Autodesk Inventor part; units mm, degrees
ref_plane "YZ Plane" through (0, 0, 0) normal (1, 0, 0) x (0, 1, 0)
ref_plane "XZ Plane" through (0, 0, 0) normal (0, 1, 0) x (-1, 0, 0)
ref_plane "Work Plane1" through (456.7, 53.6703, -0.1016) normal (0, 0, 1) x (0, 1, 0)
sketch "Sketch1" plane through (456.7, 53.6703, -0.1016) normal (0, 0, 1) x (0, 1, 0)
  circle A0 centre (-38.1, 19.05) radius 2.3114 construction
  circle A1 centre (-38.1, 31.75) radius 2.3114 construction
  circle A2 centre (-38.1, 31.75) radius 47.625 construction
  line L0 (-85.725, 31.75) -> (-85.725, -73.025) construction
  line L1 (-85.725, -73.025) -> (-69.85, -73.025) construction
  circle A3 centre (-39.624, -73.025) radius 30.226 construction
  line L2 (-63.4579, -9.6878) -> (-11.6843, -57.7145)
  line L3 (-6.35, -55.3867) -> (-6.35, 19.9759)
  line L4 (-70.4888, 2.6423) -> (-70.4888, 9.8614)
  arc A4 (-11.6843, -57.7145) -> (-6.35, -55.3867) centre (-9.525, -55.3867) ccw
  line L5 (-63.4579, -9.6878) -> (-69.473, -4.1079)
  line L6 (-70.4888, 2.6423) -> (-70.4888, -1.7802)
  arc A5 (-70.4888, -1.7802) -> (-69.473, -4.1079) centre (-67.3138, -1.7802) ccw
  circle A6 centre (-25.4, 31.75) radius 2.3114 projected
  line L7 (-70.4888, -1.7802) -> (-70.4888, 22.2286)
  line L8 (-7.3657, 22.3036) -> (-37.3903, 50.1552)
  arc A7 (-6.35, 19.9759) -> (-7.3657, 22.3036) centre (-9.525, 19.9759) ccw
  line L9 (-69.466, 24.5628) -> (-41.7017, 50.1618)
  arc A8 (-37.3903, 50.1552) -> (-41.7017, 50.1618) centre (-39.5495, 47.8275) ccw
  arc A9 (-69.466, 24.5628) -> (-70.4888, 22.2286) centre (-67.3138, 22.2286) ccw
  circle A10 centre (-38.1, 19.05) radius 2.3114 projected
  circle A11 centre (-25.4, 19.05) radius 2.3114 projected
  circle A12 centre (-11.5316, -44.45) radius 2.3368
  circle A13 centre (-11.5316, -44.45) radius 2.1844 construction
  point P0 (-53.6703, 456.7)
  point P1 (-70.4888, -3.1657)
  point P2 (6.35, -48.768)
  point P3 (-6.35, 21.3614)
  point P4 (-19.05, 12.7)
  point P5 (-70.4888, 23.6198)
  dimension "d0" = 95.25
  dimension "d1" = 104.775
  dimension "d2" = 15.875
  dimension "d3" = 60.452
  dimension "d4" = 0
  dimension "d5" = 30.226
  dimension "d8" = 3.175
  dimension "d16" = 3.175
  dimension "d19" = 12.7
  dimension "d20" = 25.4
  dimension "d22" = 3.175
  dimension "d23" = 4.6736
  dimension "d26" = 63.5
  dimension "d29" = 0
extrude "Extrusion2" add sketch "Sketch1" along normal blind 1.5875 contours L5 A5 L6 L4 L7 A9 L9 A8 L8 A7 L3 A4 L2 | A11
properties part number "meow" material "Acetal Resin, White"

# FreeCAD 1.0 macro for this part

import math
import FreeCAD as App
import Part
import Sketcher

V = App.Vector
Q = App.Units.Quantity

doc = App.newDocument("Part")
body = doc.addObject("PartDesign::Body", "Body")

sketch1 = body.newObject("Sketcher::SketchObject", "Sketch")
sketch1.AttachmentSupport = (doc.getObject("XY_Plane"), [""])
sketch1.MapMode = "FlatFace"
sketch1.AttachmentOffset = App.Placement(V(0, 0, -0.004 * 25.4), App.Rotation())
sketch1.addGeometry(Part.LineSegment(V(460.8079, -15.8027, 0), V(466.3878, -9.7876, 0)), False)
sketch1.addGeometry(Part.LineSegment(V(466.3878, -9.7876, 0), V(514.4145, 41.986, 0)), False)
sketch1.addGeometry(Part.ArcOfCircle(Part.Circle(V(512.0867, 44.1453, 0), V(0, 0, 1), 3.175095), math.radians(-42.849434), math.radians(90)), False)
sketch1.addGeometry(Part.LineSegment(V(512.0867, 47.3203, 0), V(436.7241, 47.3203, 0)), False)
sketch1.addGeometry(Part.ArcOfCircle(Part.Circle(V(436.7241, 44.1453, 0), V(0, 0, 1), 3.175), math.radians(90), math.radians(137.149339)), False)
sketch1.addGeometry(Part.LineSegment(V(434.3964, 46.3046, 0), V(406.5448, 16.28, 0)), False)
sketch1.addGeometry(Part.ArcOfCircle(Part.Circle(V(408.8725, 14.1208, 0), V(0, 0, 1), 3.174954), math.radians(137.150662), math.radians(222.67573)), False)
sketch1.addGeometry(Part.LineSegment(V(406.5382, 11.9686, 0), V(432.1372, -15.7957, 0)), False)
sketch1.addGeometry(Part.ArcOfCircle(Part.Circle(V(434.4714, -13.6435, 0), V(0, 0, 1), 3.174973), math.radians(-137.323047), math.radians(-90)), False)
sketch1.addGeometry(Part.LineSegment(V(434.4714, -16.8185, 0), V(458.4802, -16.8185, 0)), False)
sketch1.addGeometry(Part.ArcOfCircle(Part.Circle(V(458.4802, -13.6435, 0), V(0, 0, 1), 3.175), math.radians(-90), math.radians(-42.849338)), False)
sketch1.addGeometry(Part.Circle(V(501.15, 42.1387, 0), V(0, 0, 1), 2.3368), False)
sketch1.addGeometry(Part.Circle(V(437.65, 15.5703, 0), V(0, 0, 1), 2.3114), False)
sketch1.addGeometry(Part.Circle(V(424.95, 28.2703, 0), V(0, 0, 1), 2.3114), False)
sketch1.addConstraint(Sketcher.Constraint("Coincident", 0, 2, 1, 1))
sketch1.addConstraint(Sketcher.Constraint("Coincident", 1, 2, 2, 1))
sketch1.addConstraint(Sketcher.Constraint("Coincident", 2, 2, 3, 1))
sketch1.addConstraint(Sketcher.Constraint("Coincident", 3, 2, 4, 1))
sketch1.addConstraint(Sketcher.Constraint("Coincident", 4, 2, 5, 1))
sketch1.addConstraint(Sketcher.Constraint("Coincident", 5, 2, 6, 1))
sketch1.addConstraint(Sketcher.Constraint("Coincident", 6, 2, 7, 1))
sketch1.addConstraint(Sketcher.Constraint("Coincident", 7, 2, 8, 1))
sketch1.addConstraint(Sketcher.Constraint("Coincident", 8, 2, 9, 1))
sketch1.addConstraint(Sketcher.Constraint("Coincident", 9, 2, 10, 1))
sketch1.addConstraint(Sketcher.Constraint("Coincident", 10, 2, 0, 1))
sketch1.addConstraint(Sketcher.Constraint("Horizontal", 3))
sketch1.addConstraint(Sketcher.Constraint("Horizontal", 9))
sketch1.addConstraint(Sketcher.Constraint("Diameter", 11, Q("0.184 in")))
sketch1.addConstraint(Sketcher.Constraint("Radius", 2, Q("0.125 in")))
sketch1.addConstraint(Sketcher.Constraint("Radius", 4, Q("0.125 in")))
sketch1.addConstraint(Sketcher.Constraint("Radius", 6, Q("0.125 in")))
sketch1.addConstraint(Sketcher.Constraint("Radius", 8, Q("0.125 in")))
sketch1.addConstraint(Sketcher.Constraint("Radius", 10, Q("0.125 in")))
sketch1.addConstraint(Sketcher.Constraint("DistanceX", 12, 3, 11, 3, Q("2.5 in")))
sketch1.addConstraint(Sketcher.Constraint("DistanceX", 13, 3, 12, 3, Q("0.5 in")))
sketch1.addConstraint(Sketcher.Constraint("DistanceY", 12, 3, 13, 3, Q("0.5 in")))
sketch1.addConstraint(Sketcher.Constraint("Diameter", 12, Q("0.182 in")))
sketch1.addConstraint(Sketcher.Constraint("Diameter", 13, Q("0.182 in")))
sketch1.addConstraint(Sketcher.Constraint("DistanceY", 13, 3, 4, 3, Q("0.625 in")))
sketch1.addConstraint(Sketcher.Constraint("DistanceY", 4, 2, 3, 2, Q("0.04 in")))
sketch1.addConstraint(Sketcher.Constraint("DistanceY", 9, 2, 10, 2, Q("0.04 in")))
sketch1.addConstraint(Sketcher.Constraint("DistanceY", -1, 1, 2, 3, Q("1.738 in")))
sketch1.addConstraint(Sketcher.Constraint("DistanceY", -1, 1, 11, 3, Q("1.659 in")))
sketch1.addConstraint(Sketcher.Constraint("DistanceY", -1, 1, 1, 2, Q("1.653 in")))
sketch1.addConstraint(Sketcher.Constraint("DistanceY", 6, 3, 5, 2, Q("0.085 in")))
sketch1.addConstraint(Sketcher.Constraint("Distance", 7, Q("1.4868 in")))
sketch1.addConstraint(Sketcher.Constraint("DistanceX", 3, 2, 3, 1, 75.3626))
sketch1.addConstraint(Sketcher.Constraint("DistanceX", 9, 1, 9, 2, 24.0088))
sketch1.addConstraint(Sketcher.Constraint("DistanceX", -1, 1, 2, 3, Q("20.1609 in")))
sketch1.addConstraint(Sketcher.Constraint("DistanceX", -1, 1, 10, 3, Q("18.0504 in")))
sketch1.addConstraint(Sketcher.Constraint("DistanceX", -1, 1, 2, 2, Q("20.1609 in")))
sketch1.addConstraint(Sketcher.Constraint("DistanceX", -1, 1, 5, 2, Q("16.0057 in")))
sketch1.addConstraint(Sketcher.Constraint("DistanceY", -1, 1, 6, 2, Q("0.4712 in")))
sketch1.addConstraint(Sketcher.Constraint("DistanceX", -1, 1, 9, 2, Q("18.0504 in")))
sketch1.addConstraint(Sketcher.Constraint("DistanceX", 8, 3, 4, 3, Q("0.0887 in")))
sketch1.addConstraint(Sketcher.Constraint("DistanceY", 10, 3, 0, 2, Q("0.1518 in")))
sketch1.addConstraint(Sketcher.Constraint("DistanceX", 12, 3, 0, 2, Q("1.1314 in")))
sketch1.addConstraint(Sketcher.Constraint("DistanceX", 8, 3, 3, 2, Q("0.0887 in")))
sketch1.addConstraint(Sketcher.Constraint("DistanceX", 13, 3, 4, 2, Q("0.3719 in")))
sketch1.addConstraint(Sketcher.Constraint("DistanceY", 8, 3, 5, 2, Q("1.1781 in")))
sketch1.addConstraint(Sketcher.Constraint("DistanceX", 6, 2, 6, 3, Q("0.0919 in")))
pad1 = body.newObject("PartDesign::Pad", "Pad")
pad1.Profile = sketch1
pad1.Length = Q("0.0625 in")

doc.recompute()
